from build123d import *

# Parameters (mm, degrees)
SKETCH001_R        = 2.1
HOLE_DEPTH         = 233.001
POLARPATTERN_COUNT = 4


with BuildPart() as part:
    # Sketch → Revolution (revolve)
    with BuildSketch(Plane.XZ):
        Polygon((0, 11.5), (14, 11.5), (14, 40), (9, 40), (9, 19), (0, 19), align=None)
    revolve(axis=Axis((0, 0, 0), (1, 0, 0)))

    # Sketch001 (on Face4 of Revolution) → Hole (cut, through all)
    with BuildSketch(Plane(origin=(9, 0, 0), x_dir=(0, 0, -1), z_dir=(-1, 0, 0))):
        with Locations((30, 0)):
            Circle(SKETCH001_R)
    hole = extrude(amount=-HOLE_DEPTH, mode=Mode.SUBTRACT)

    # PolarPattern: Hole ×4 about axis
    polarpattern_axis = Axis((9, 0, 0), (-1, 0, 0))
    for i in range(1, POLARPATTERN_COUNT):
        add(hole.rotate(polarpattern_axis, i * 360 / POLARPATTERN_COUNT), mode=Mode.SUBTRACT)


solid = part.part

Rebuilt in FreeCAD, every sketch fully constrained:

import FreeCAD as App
import Part
import Sketcher
from FreeCAD import Vector

doc = App.newDocument("Part")
params = doc.addObject("Spreadsheet::Sheet", "Params")
for row, (alias, value) in enumerate([
    ("sketch1_width", "14 mm"),
    ("sketch1_width2", "5 mm"),
    ("sketch1_height", "21 mm"),
    ("sketch1_height2", "28.5 mm"),
    ("revolution_angle", "360 deg"),
    ("sketch2_diameter", "4.2 mm"),
], start=1):
    params.set(f"A{row}", alias)
    params.set(f"B{row}", "=" + value)
    params.setAlias(f"B{row}", alias)

body = doc.addObject("PartDesign::Body", "Body")

sketch1 = doc.addObject("Sketcher::SketchObject", "Sketch")
body.addObject(sketch1)
sketch1.AttachmentSupport = (doc.XZ_Plane, [""])
sketch1.MapMode = "FlatFace"
sketch1.addGeometry([
    Part.LineSegment(Vector(0, 12, 0), Vector(14, 12, 0)),
    Part.LineSegment(Vector(14, 12, 0), Vector(14, 40, 0)),
    Part.LineSegment(Vector(14, 40, 0), Vector(9, 40, 0)),
    Part.LineSegment(Vector(9, 40, 0), Vector(9, 19, 0)),
    Part.LineSegment(Vector(9, 19, 0), Vector(0, 19, 0)),
    Part.LineSegment(Vector(0, 19, 0), Vector(0, 12, 0)),
], False)
sketch1.addConstraint([
    Sketcher.Constraint("Coincident", 0, 2, 1, 1),
    Sketcher.Constraint("Coincident", 1, 2, 2, 1),
    Sketcher.Constraint("Coincident", 2, 2, 3, 1),
    Sketcher.Constraint("Coincident", 3, 2, 4, 1),
    Sketcher.Constraint("Coincident", 4, 2, 5, 1),
    Sketcher.Constraint("Coincident", 5, 2, 0, 1),
    Sketcher.Constraint("Horizontal", 0),
    Sketcher.Constraint("Vertical", 1),
    Sketcher.Constraint("Horizontal", 2),
    Sketcher.Constraint("Vertical", 3),
    Sketcher.Constraint("Horizontal", 4),
    Sketcher.Constraint("Vertical", 5),
    Sketcher.Constraint("PointOnObject", 4, 2, -2),
    Sketcher.Constraint("DistanceX", 0, 1, 0, 2, 14.0),
    Sketcher.Constraint("DistanceX", 2, 2, 2, 1, 5.0),
    Sketcher.Constraint("DistanceY", 3, 2, 3, 1, 21.0),
    Sketcher.Constraint("DistanceY", 1, 1, 1, 2, 28.5),
    Sketcher.Constraint("DistanceY", -1, 1, 1, 2, 40.0),
])
sketch1.setExpression("Constraints[13]", "Params.sketch1_width")
sketch1.setExpression("Constraints[14]", "Params.sketch1_width2")
sketch1.setExpression("Constraints[15]", "Params.sketch1_height")
sketch1.setExpression("Constraints[16]", "Params.sketch1_height2")
revolution = doc.addObject("PartDesign::Revolution", "Revolution")
body.addObject(revolution)
revolution.Profile = sketch1
revolution.ReferenceAxis = (sketch1, ["H_Axis"])
revolution.setExpression("Angle", "Params.revolution_angle")

sketch2 = doc.addObject("Sketcher::SketchObject", "Sketch001")
body.addObject(sketch2)
sketch2.AttachmentSupport = (doc.YZ_Plane, [""])
sketch2.MapMode = "FlatFace"
sketch2.AttachmentOffset = App.Placement(Vector(0, 0, 9), App.Rotation())
sketch2.addGeometry(Part.Circle(Vector(0, -30, 0), Vector(0, 0, 1), 2.1), False)
sketch2.addConstraint([
    Sketcher.Constraint("PointOnObject", 0, 3, -2),
    Sketcher.Constraint("Diameter", 0, 4.2),
    Sketcher.Constraint("DistanceY", 0, 3, -1, 1, 30.0),
])
sketch2.setExpression("Constraints[1]", "Params.sketch2_diameter")
pocket1 = doc.addObject("PartDesign::Pocket", "Pocket")
body.addObject(pocket1)
pocket1.Profile = sketch2
pocket1.Type = "ThroughAll"
pocket1.Reversed = True
doc.recompute()

polarpattern = doc.addObject("PartDesign::PolarPattern", "PolarPattern")
body.addObject(polarpattern)
polarpattern.Originals = [pocket1]
polarpattern.Axis = (doc.X_Axis, [""])
polarpattern.Angle = 360
polarpattern.Occurrences = 4
body.Tip = polarpattern

doc.recompute()
